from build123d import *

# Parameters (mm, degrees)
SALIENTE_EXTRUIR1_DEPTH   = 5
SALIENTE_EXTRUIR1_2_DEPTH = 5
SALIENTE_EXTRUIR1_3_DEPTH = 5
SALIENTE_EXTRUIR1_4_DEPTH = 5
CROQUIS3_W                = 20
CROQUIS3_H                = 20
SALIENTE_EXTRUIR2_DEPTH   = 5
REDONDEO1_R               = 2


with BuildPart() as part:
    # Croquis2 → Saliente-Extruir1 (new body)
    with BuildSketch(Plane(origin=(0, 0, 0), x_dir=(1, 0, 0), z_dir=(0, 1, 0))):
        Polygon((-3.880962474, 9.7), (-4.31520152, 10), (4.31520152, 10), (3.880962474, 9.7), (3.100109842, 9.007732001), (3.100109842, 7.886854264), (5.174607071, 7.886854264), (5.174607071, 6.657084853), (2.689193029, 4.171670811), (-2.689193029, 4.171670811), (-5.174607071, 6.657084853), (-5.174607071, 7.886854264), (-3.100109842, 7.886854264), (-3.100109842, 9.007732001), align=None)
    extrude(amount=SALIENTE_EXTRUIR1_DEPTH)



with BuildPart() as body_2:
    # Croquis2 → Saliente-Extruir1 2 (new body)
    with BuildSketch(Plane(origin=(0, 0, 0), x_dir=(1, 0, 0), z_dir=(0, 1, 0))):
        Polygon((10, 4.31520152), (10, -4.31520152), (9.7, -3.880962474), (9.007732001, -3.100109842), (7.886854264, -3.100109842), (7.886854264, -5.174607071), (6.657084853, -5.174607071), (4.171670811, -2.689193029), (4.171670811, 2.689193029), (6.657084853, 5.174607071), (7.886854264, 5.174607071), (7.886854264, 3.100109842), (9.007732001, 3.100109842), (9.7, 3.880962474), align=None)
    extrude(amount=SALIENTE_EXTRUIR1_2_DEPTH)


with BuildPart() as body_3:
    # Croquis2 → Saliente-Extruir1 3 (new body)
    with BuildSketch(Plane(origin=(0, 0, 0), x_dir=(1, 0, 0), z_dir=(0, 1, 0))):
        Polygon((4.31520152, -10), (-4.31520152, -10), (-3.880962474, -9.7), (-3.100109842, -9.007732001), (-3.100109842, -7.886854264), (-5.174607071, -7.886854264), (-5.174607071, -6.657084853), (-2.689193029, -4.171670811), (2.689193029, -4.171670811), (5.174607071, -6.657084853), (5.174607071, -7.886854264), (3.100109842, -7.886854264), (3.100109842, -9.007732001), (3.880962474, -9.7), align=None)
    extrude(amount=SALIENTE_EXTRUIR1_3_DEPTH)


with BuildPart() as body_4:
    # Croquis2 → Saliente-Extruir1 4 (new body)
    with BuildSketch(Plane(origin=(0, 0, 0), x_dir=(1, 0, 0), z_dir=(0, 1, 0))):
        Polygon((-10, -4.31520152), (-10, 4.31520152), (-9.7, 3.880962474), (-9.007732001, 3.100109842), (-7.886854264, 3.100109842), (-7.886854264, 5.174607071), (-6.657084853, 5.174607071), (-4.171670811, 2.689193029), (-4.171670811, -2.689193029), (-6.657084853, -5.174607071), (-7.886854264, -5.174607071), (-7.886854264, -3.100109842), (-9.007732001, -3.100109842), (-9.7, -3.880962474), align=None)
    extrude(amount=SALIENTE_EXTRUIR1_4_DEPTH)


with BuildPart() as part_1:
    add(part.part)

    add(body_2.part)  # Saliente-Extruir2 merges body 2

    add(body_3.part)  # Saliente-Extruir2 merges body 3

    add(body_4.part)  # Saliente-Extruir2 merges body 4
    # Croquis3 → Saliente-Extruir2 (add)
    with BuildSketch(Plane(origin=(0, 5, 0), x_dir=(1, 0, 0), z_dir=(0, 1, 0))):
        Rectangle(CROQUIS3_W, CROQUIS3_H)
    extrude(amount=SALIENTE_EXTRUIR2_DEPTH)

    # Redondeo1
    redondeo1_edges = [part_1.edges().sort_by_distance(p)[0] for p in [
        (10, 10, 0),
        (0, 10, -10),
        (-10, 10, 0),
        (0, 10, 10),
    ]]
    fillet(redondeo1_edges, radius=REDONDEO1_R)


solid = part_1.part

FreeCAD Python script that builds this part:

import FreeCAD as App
import Part
import Sketcher
Q = App.Units.Quantity


def edges_at(feature, points):
    """Names of the edges that pass closest to the given points."""
    edges = feature.Shape.Edges
    near = lambda p: min(range(len(edges)), key=lambda i: edges[i].distToShape(Part.Vertex(*p))[0])
    return sorted({f"Edge{near(p) + 1}" for p in points})

doc = App.newDocument("Part")
body = doc.addObject("PartDesign::Body", "Body")

sketch1 = body.newObject("Sketcher::SketchObject", "Sketch")
sketch1.AttachmentSupport = (doc.getObject("XZ_Plane"), [""])
sketch1.MapMode = "FlatFace"
sketch1.addGeometry([
    Part.LineSegment(App.Vector(-4.3, -10, 0), App.Vector(-3.9, -9.7, 0)),
    Part.LineSegment(App.Vector(-3.9, -9.7, 0), App.Vector(-3.1, -9, 0)),
    Part.LineSegment(App.Vector(-3.1, -9, 0), App.Vector(-3.1, -7.9, 0)),
    Part.LineSegment(App.Vector(-3.1, -7.9, 0), App.Vector(-5.2, -7.9, 0)),
    Part.LineSegment(App.Vector(-5.2, -7.9, 0), App.Vector(-5.2, -6.7, 0)),
    Part.LineSegment(App.Vector(-5.2, -6.7, 0), App.Vector(-2.7, -4.2, 0)),
    Part.LineSegment(App.Vector(-2.7, -4.2, 0), App.Vector(2.7, -4.2, 0)),
    Part.LineSegment(App.Vector(2.7, -4.2, 0), App.Vector(5.2, -6.7, 0)),
    Part.LineSegment(App.Vector(5.2, -6.7, 0), App.Vector(5.2, -7.9, 0)),
    Part.LineSegment(App.Vector(5.2, -7.9, 0), App.Vector(3.1, -7.9, 0)),
    Part.LineSegment(App.Vector(3.1, -7.9, 0), App.Vector(3.1, -9, 0)),
    Part.LineSegment(App.Vector(3.1, -9, 0), App.Vector(3.9, -9.7, 0)),
    Part.LineSegment(App.Vector(3.9, -9.7, 0), App.Vector(4.3, -10, 0)),
    Part.LineSegment(App.Vector(4.3, -10, 0), App.Vector(-4.3, -10, 0)),
], False)
sketch1.addConstraint([
    Sketcher.Constraint("Coincident", 0, 2, 1, 1),
    Sketcher.Constraint("Coincident", 1, 2, 2, 1),
    Sketcher.Constraint("Coincident", 2, 2, 3, 1),
    Sketcher.Constraint("Coincident", 3, 2, 4, 1),
    Sketcher.Constraint("Coincident", 4, 2, 5, 1),
    Sketcher.Constraint("Coincident", 5, 2, 6, 1),
    Sketcher.Constraint("Coincident", 6, 2, 7, 1),
    Sketcher.Constraint("Coincident", 7, 2, 8, 1),
    Sketcher.Constraint("Coincident", 8, 2, 9, 1),
    Sketcher.Constraint("Coincident", 9, 2, 10, 1),
    Sketcher.Constraint("Coincident", 10, 2, 11, 1),
    Sketcher.Constraint("Coincident", 11, 2, 12, 1),
    Sketcher.Constraint("Coincident", 12, 2, 13, 1),
    Sketcher.Constraint("Coincident", 13, 2, 0, 1),
    Sketcher.Constraint("Vertical", 2),
    Sketcher.Constraint("Horizontal", 3),
    Sketcher.Constraint("Vertical", 4),
    Sketcher.Constraint("Horizontal", 6),
    Sketcher.Constraint("Vertical", 8),
    Sketcher.Constraint("Horizontal", 9),
    Sketcher.Constraint("Vertical", 10),
    Sketcher.Constraint("Horizontal", 13),
    Sketcher.Constraint("Symmetric", 4, 2, 7, 2, -2),
    Sketcher.Constraint("Symmetric", 2, 2, 9, 2, -2),
    Sketcher.Constraint("Symmetric", 0, 2, 11, 2, -2),
    Sketcher.Constraint("Perpendicular", 5, 7),
    Sketcher.Constraint("Horizontal", 1, 2, 10, 2),
    Sketcher.Constraint("Equal", 5, 7),
    Sketcher.Constraint("Equal", 0, 12),
    Sketcher.Constraint("DistanceY", 12, 2, -1, 1, Q("10 mm")),
    Sketcher.Constraint("DistanceY", 0, 2, -1, 1, Q("9.7 mm")),
    Sketcher.Constraint("DistanceY", 4, 1, 4, 2, Q("1.229769 mm")),
    Sketcher.Constraint("DistanceX", -1, 1, 12, 2, Q("4.315202 mm")),
    Sketcher.Constraint("DistanceX", 4, 2, 6, 2, Q("7.8638 mm")),
    Sketcher.Constraint("Distance", 0, Q("0.527791 mm")),
    Sketcher.Constraint("DistanceX", 3, 2, 3, 1, Q("2.074497 mm")),
    Sketcher.Constraint("DistanceX", 6, 1, 6, 2, Q("5.378386 mm")),
    Sketcher.Constraint("DistanceY", 2, 1, 2, 2, Q("1.120878 mm")),
    Sketcher.Constraint("DistanceY", 5, 2, -1, 1, Q("4.171671 mm")),
])
pad1 = body.newObject("PartDesign::Pad", "Pad")
pad1.Profile = sketch1
pad1.Length = 5
pad1.Reversed = True
body2 = doc.addObject("PartDesign::Body", "Body001")

sketch2 = body2.newObject("Sketcher::SketchObject", "Sketch001")
sketch2.AttachmentSupport = (doc.getObject("XZ_Plane001"), [""])
sketch2.MapMode = "FlatFace"
sketch2.addGeometry([
    Part.LineSegment(App.Vector(10, 4.3, 0), App.Vector(10, -4.3, 0)),
    Part.LineSegment(App.Vector(10, -4.3, 0), App.Vector(9.7, -3.9, 0)),
    Part.LineSegment(App.Vector(9.7, -3.9, 0), App.Vector(9, -3.1, 0)),
    Part.LineSegment(App.Vector(9, -3.1, 0), App.Vector(7.9, -3.1, 0)),
    Part.LineSegment(App.Vector(7.9, -3.1, 0), App.Vector(7.9, -5.2, 0)),
    Part.LineSegment(App.Vector(7.9, -5.2, 0), App.Vector(6.7, -5.2, 0)),
    Part.LineSegment(App.Vector(6.7, -5.2, 0), App.Vector(4.2, -2.7, 0)),
    Part.LineSegment(App.Vector(4.2, -2.7, 0), App.Vector(4.2, 2.7, 0)),
    Part.LineSegment(App.Vector(4.2, 2.7, 0), App.Vector(6.7, 5.2, 0)),
    Part.LineSegment(App.Vector(6.7, 5.2, 0), App.Vector(7.9, 5.2, 0)),
    Part.LineSegment(App.Vector(7.9, 5.2, 0), App.Vector(7.9, 3.1, 0)),
    Part.LineSegment(App.Vector(7.9, 3.1, 0), App.Vector(9, 3.1, 0)),
    Part.LineSegment(App.Vector(9, 3.1, 0), App.Vector(9.7, 3.9, 0)),
    Part.LineSegment(App.Vector(9.7, 3.9, 0), App.Vector(10, 4.3, 0)),
], False)
sketch2.addConstraint([
    Sketcher.Constraint("Coincident", 0, 2, 1, 1),
    Sketcher.Constraint("Coincident", 1, 2, 2, 1),
    Sketcher.Constraint("Coincident", 2, 2, 3, 1),
    Sketcher.Constraint("Coincident", 3, 2, 4, 1),
    Sketcher.Constraint("Coincident", 4, 2, 5, 1),
    Sketcher.Constraint("Coincident", 5, 2, 6, 1),
    Sketcher.Constraint("Coincident", 6, 2, 7, 1),
    Sketcher.Constraint("Coincident", 7, 2, 8, 1),
    Sketcher.Constraint("Coincident", 8, 2, 9, 1),
    Sketcher.Constraint("Coincident", 9, 2, 10, 1),
    Sketcher.Constraint("Coincident", 10, 2, 11, 1),
    Sketcher.Constraint("Coincident", 11, 2, 12, 1),
    Sketcher.Constraint("Coincident", 12, 2, 13, 1),
    Sketcher.Constraint("Coincident", 13, 2, 0, 1),
    Sketcher.Constraint("Vertical", 0),
    Sketcher.Constraint("Horizontal", 3),
    Sketcher.Constraint("Vertical", 4),
    Sketcher.Constraint("Horizontal", 5),
    Sketcher.Constraint("Vertical", 7),
    Sketcher.Constraint("Horizontal", 9),
    Sketcher.Constraint("Vertical", 10),
    Sketcher.Constraint("Horizontal", 11),
    Sketcher.Constraint("Symmetric", 5, 2, 8, 2, -1),
    Sketcher.Constraint("Symmetric", 3, 2, 10, 2, -1),
    Sketcher.Constraint("Symmetric", 1, 2, 12, 2, -1),
    Sketcher.Constraint("Perpendicular", 6, 8),
    Sketcher.Constraint("Vertical", 2, 2, 11, 2),
    Sketcher.Constraint("Equal", 6, 8),
    Sketcher.Constraint("Equal", 1, 13),
    Sketcher.Constraint("DistanceX", -1, 1, 0, 2, Q("10 mm")),
    Sketcher.Constraint("DistanceX", -1, 1, 1, 2, Q("9.7 mm")),
    Sketcher.Constraint("DistanceX", 5, 2, 5, 1, Q("1.229769 mm")),
    Sketcher.Constraint("DistanceY", 0, 2, -1, 1, Q("4.315202 mm")),
    Sketcher.Constraint("DistanceY", 5, 2, 7, 2, Q("7.8638 mm")),
    Sketcher.Constraint("Distance", 1, Q("0.527791 mm")),
    Sketcher.Constraint("DistanceX", 3, 2, 3, 1, Q("1.120878 mm")),
    Sketcher.Constraint("DistanceY", 4, 2, 4, 1, Q("2.074497 mm")),
    Sketcher.Constraint("DistanceY", 7, 1, 7, 2, Q("5.378386 mm")),
    Sketcher.Constraint("DistanceX", -1, 1, 6, 2, Q("4.171671 mm")),
])
pad2 = body2.newObject("PartDesign::Pad", "Pad001")
pad2.Profile = sketch2
pad2.Length = 5
pad2.Reversed = True
body3 = doc.addObject("PartDesign::Body", "Body002")

sketch3 = body3.newObject("Sketcher::SketchObject", "Sketch002")
sketch3.AttachmentSupport = (doc.getObject("XZ_Plane002"), [""])
sketch3.MapMode = "FlatFace"
sketch3.addGeometry([
    Part.LineSegment(App.Vector(-4.3, 10, 0), App.Vector(4.3, 10, 0)),
    Part.LineSegment(App.Vector(4.3, 10, 0), App.Vector(3.9, 9.7, 0)),
    Part.LineSegment(App.Vector(3.9, 9.7, 0), App.Vector(3.1, 9, 0)),
    Part.LineSegment(App.Vector(3.1, 9, 0), App.Vector(3.1, 7.9, 0)),
    Part.LineSegment(App.Vector(3.1, 7.9, 0), App.Vector(5.2, 7.9, 0)),
    Part.LineSegment(App.Vector(5.2, 7.9, 0), App.Vector(5.2, 6.7, 0)),
    Part.LineSegment(App.Vector(5.2, 6.7, 0), App.Vector(2.7, 4.2, 0)),
    Part.LineSegment(App.Vector(2.7, 4.2, 0), App.Vector(-2.7, 4.2, 0)),
    Part.LineSegment(App.Vector(-2.7, 4.2, 0), App.Vector(-5.2, 6.7, 0)),
    Part.LineSegment(App.Vector(-5.2, 6.7, 0), App.Vector(-5.2, 7.9, 0)),
    Part.LineSegment(App.Vector(-5.2, 7.9, 0), App.Vector(-3.1, 7.9, 0)),
    Part.LineSegment(App.Vector(-3.1, 7.9, 0), App.Vector(-3.1, 9, 0)),
    Part.LineSegment(App.Vector(-3.1, 9, 0), App.Vector(-3.9, 9.7, 0)),
    Part.LineSegment(App.Vector(-3.9, 9.7, 0), App.Vector(-4.3, 10, 0)),
], False)
sketch3.addConstraint([
    Sketcher.Constraint("Coincident", 0, 2, 1, 1),
    Sketcher.Constraint("Coincident", 1, 2, 2, 1),
    Sketcher.Constraint("Coincident", 2, 2, 3, 1),
    Sketcher.Constraint("Coincident", 3, 2, 4, 1),
    Sketcher.Constraint("Coincident", 4, 2, 5, 1),
    Sketcher.Constraint("Coincident", 5, 2, 6, 1),
    Sketcher.Constraint("Coincident", 6, 2, 7, 1),
    Sketcher.Constraint("Coincident", 7, 2, 8, 1),
    Sketcher.Constraint("Coincident", 8, 2, 9, 1),
    Sketcher.Constraint("Coincident", 9, 2, 10, 1),
    Sketcher.Constraint("Coincident", 10, 2, 11, 1),
    Sketcher.Constraint("Coincident", 11, 2, 12, 1),
    Sketcher.Constraint("Coincident", 12, 2, 13, 1),
    Sketcher.Constraint("Coincident", 13, 2, 0, 1),
    Sketcher.Constraint("Horizontal", 0),
    Sketcher.Constraint("Vertical", 3),
    Sketcher.Constraint("Horizontal", 4),
    Sketcher.Constraint("Vertical", 5),
    Sketcher.Constraint("Horizontal", 7),
    Sketcher.Constraint("Vertical", 9),
    Sketcher.Constraint("Horizontal", 10),
    Sketcher.Constraint("Vertical", 11),
    Sketcher.Constraint("Symmetric", 5, 2, 8, 2, -2),
    Sketcher.Constraint("Symmetric", 3, 2, 10, 2, -2),
    Sketcher.Constraint("Symmetric", 1, 2, 12, 2, -2),
    Sketcher.Constraint("Perpendicular", 6, 8),
    Sketcher.Constraint("Horizontal", 2, 2, 11, 2),
    Sketcher.Constraint("Equal", 6, 8),
    Sketcher.Constraint("Equal", 1, 13),
    Sketcher.Constraint("DistanceY", -1, 1, 0, 2, Q("10 mm")),
    Sketcher.Constraint("DistanceY", -1, 1, 1, 2, Q("9.7 mm")),
    Sketcher.Constraint("DistanceY", 5, 2, 5, 1, Q("1.229769 mm")),
    Sketcher.Constraint("DistanceX", -1, 1, 0, 2, Q("4.315202 mm")),
    Sketcher.Constraint("DistanceX", 7, 2, 5, 2, Q("7.8638 mm")),
    Sketcher.Constraint("Distance", 1, Q("0.527791 mm")),
    Sketcher.Constraint("DistanceX", 4, 1, 4, 2, Q("2.074497 mm")),
    Sketcher.Constraint("DistanceX", 7, 2, 7, 1, Q("5.378386 mm")),
    Sketcher.Constraint("DistanceY", 3, 2, 3, 1, Q("1.120878 mm")),
    Sketcher.Constraint("DistanceY", -1, 1, 6, 2, Q("4.171671 mm")),
])
pad3 = body3.newObject("PartDesign::Pad", "Pad002")
pad3.Profile = sketch3
pad3.Length = 5
pad3.Reversed = True
body4 = doc.addObject("PartDesign::Body", "Body003")

sketch4 = body4.newObject("Sketcher::SketchObject", "Sketch003")
sketch4.AttachmentSupport = (doc.getObject("XZ_Plane003"), [""])
sketch4.MapMode = "FlatFace"
sketch4.addGeometry([
    Part.LineSegment(App.Vector(-10, -4.3, 0), App.Vector(-10, 4.3, 0)),
    Part.LineSegment(App.Vector(-10, 4.3, 0), App.Vector(-9.7, 3.9, 0)),
    Part.LineSegment(App.Vector(-9.7, 3.9, 0), App.Vector(-9, 3.1, 0)),
    Part.LineSegment(App.Vector(-9, 3.1, 0), App.Vector(-7.9, 3.1, 0)),
    Part.LineSegment(App.Vector(-7.9, 3.1, 0), App.Vector(-7.9, 5.2, 0)),
    Part.LineSegment(App.Vector(-7.9, 5.2, 0), App.Vector(-6.7, 5.2, 0)),
    Part.LineSegment(App.Vector(-6.7, 5.2, 0), App.Vector(-4.2, 2.7, 0)),
    Part.LineSegment(App.Vector(-4.2, 2.7, 0), App.Vector(-4.2, -2.7, 0)),
    Part.LineSegment(App.Vector(-4.2, -2.7, 0), App.Vector(-6.7, -5.2, 0)),
    Part.LineSegment(App.Vector(-6.7, -5.2, 0), App.Vector(-7.9, -5.2, 0)),
    Part.LineSegment(App.Vector(-7.9, -5.2, 0), App.Vector(-7.9, -3.1, 0)),
    Part.LineSegment(App.Vector(-7.9, -3.1, 0), App.Vector(-9, -3.1, 0)),
    Part.LineSegment(App.Vector(-9, -3.1, 0), App.Vector(-9.7, -3.9, 0)),
    Part.LineSegment(App.Vector(-9.7, -3.9, 0), App.Vector(-10, -4.3, 0)),
], False)
sketch4.addConstraint([
    Sketcher.Constraint("Coincident", 0, 2, 1, 1),
    Sketcher.Constraint("Coincident", 1, 2, 2, 1),
    Sketcher.Constraint("Coincident", 2, 2, 3, 1),
    Sketcher.Constraint("Coincident", 3, 2, 4, 1),
    Sketcher.Constraint("Coincident", 4, 2, 5, 1),
    Sketcher.Constraint("Coincident", 5, 2, 6, 1),
    Sketcher.Constraint("Coincident", 6, 2, 7, 1),
    Sketcher.Constraint("Coincident", 7, 2, 8, 1),
    Sketcher.Constraint("Coincident", 8, 2, 9, 1),
    Sketcher.Constraint("Coincident", 9, 2, 10, 1),
    Sketcher.Constraint("Coincident", 10, 2, 11, 1),
    Sketcher.Constraint("Coincident", 11, 2, 12, 1),
    Sketcher.Constraint("Coincident", 12, 2, 13, 1),
    Sketcher.Constraint("Coincident", 13, 2, 0, 1),
    Sketcher.Constraint("Vertical", 0),
    Sketcher.Constraint("Horizontal", 3),
    Sketcher.Constraint("Vertical", 4),
    Sketcher.Constraint("Horizontal", 5),
    Sketcher.Constraint("Vertical", 7),
    Sketcher.Constraint("Horizontal", 9),
    Sketcher.Constraint("Vertical", 10),
    Sketcher.Constraint("Horizontal", 11),
    Sketcher.Constraint("Symmetric", 5, 2, 8, 2, -1),
    Sketcher.Constraint("Symmetric", 3, 2, 10, 2, -1),
    Sketcher.Constraint("Symmetric", 1, 2, 12, 2, -1),
    Sketcher.Constraint("Perpendicular", 6, 8),
    Sketcher.Constraint("Vertical", 2, 2, 11, 2),
    Sketcher.Constraint("Equal", 6, 8),
    Sketcher.Constraint("Equal", 1, 13),
    Sketcher.Constraint("DistanceX", 0, 2, -1, 1, Q("10 mm")),
    Sketcher.Constraint("DistanceX", 1, 2, -1, 1, Q("9.7 mm")),
    Sketcher.Constraint("DistanceX", 5, 1, 5, 2, Q("1.229769 mm")),
    Sketcher.Constraint("DistanceY", -1, 1, 0, 2, Q("4.315202 mm")),
    Sketcher.Constraint("DistanceY", 7, 2, 5, 2, Q("7.8638 mm")),
    Sketcher.Constraint("Distance", 1, Q("0.527791 mm")),
    Sketcher.Constraint("DistanceX", 3, 1, 3, 2, Q("1.120878 mm")),
    Sketcher.Constraint("DistanceY", 4, 1, 4, 2, Q("2.074497 mm")),
    Sketcher.Constraint("DistanceY", 7, 2, 7, 1, Q("5.378386 mm")),
    Sketcher.Constraint("DistanceX", 6, 2, -1, 1, Q("4.171671 mm")),
])
pad4 = body4.newObject("PartDesign::Pad", "Pad003")
pad4.Profile = sketch4
pad4.Length = 5
pad4.Reversed = True
body.AllowCompound = True
doc.recompute()

boolean = body.newObject("PartDesign::Boolean", "Boolean")
boolean.Type = "Fuse"
boolean.addObjects([body2])
doc.recompute()

boolean2 = body.newObject("PartDesign::Boolean", "Boolean001")
boolean2.Type = "Fuse"
boolean2.addObjects([body3])
doc.recompute()

boolean3 = body.newObject("PartDesign::Boolean", "Boolean002")
boolean3.Type = "Fuse"
boolean3.addObjects([body4])

sketch5 = body.newObject("Sketcher::SketchObject", "Sketch004")
sketch5.AttachmentSupport = (doc.getObject("XZ_Plane"), [""])
sketch5.MapMode = "FlatFace"
sketch5.AttachmentOffset = App.Placement(App.Vector(0, 0, -5), App.Rotation())
sketch5.addGeometry([
    Part.LineSegment(App.Vector(-10, -10, 0), App.Vector(-10, 10, 0)),
    Part.LineSegment(App.Vector(-10, 10, 0), App.Vector(10, 10, 0)),
    Part.LineSegment(App.Vector(10, 10, 0), App.Vector(10, -10, 0)),
    Part.LineSegment(App.Vector(10, -10, 0), App.Vector(-10, -10, 0)),
], False)
sketch5.addConstraint([
    Sketcher.Constraint("Coincident", 0, 2, 1, 1),
    Sketcher.Constraint("Coincident", 1, 2, 2, 1),
    Sketcher.Constraint("Coincident", 2, 2, 3, 1),
    Sketcher.Constraint("Coincident", 3, 2, 0, 1),
    Sketcher.Constraint("Vertical", 0),
    Sketcher.Constraint("Horizontal", 1),
    Sketcher.Constraint("Vertical", 2),
    Sketcher.Constraint("Horizontal", 3),
    Sketcher.Constraint("Symmetric", 0, 2, 2, 2, -1, 1),
    Sketcher.Constraint("Equal", 3, 0),
    Sketcher.Constraint("DistanceX", 1, 1, 1, 2, Q("20 mm")),
])
pad5 = body.newObject("PartDesign::Pad", "Pad004")
pad5.Profile = sketch5
pad5.Length = 5
pad5.Reversed = True
doc.recompute()

fillet = body.newObject("PartDesign::Fillet", "Fillet")
fillet.Base = (pad5, edges_at(pad5, [
    (10, 10, 0),
    (0, 10, -10),
    (-10, 10, 0),
    (0, 10, 10),
]))
fillet.Radius = 2

doc.recompute()
